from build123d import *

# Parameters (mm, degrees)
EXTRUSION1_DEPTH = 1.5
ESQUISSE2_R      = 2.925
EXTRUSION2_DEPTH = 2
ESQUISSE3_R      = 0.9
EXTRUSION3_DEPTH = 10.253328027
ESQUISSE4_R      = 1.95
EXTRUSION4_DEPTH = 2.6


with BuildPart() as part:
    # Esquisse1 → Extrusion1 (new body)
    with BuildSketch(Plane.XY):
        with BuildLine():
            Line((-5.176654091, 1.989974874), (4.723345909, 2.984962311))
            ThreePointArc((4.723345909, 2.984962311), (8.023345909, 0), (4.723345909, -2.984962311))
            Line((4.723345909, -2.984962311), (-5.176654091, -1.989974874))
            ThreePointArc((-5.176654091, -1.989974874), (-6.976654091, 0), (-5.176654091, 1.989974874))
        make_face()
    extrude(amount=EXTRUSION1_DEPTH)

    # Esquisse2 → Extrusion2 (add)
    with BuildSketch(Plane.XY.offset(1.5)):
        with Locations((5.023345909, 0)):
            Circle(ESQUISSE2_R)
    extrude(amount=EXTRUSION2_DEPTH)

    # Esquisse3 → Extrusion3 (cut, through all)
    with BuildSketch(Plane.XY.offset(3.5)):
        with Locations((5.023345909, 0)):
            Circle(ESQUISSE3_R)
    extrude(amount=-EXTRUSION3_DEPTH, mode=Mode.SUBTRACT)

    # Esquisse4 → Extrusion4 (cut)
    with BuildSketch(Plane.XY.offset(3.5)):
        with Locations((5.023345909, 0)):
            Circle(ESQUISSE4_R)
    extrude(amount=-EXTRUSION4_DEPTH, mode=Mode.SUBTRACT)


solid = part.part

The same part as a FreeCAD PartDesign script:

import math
import FreeCAD as App
import Part
import Sketcher
Q = App.Units.Quantity

doc = App.newDocument("Part")
body = doc.addObject("PartDesign::Body", "Body")

# Sketch on XY plane
sketch1 = body.newObject("Sketcher::SketchObject", "Sketch")
sketch1.AttachmentSupport = (doc.getObject("XY_Plane"), [""])
sketch1.MapMode = "FlatFace"
sketch1.addGeometry([
    Part.LineSegment(App.Vector(4.723346, 2.984962, 0), App.Vector(-5.176654, 1.989975, 0)),
    Part.ArcOfCircle(Part.Circle(App.Vector(-4.976654, 0, 0), App.Vector(0, 0, 1), 2), math.radians(95.73917), math.radians(264.26083)),
    Part.LineSegment(App.Vector(-5.176654, -1.989975, 0), App.Vector(4.723346, -2.984962, 0)),
    Part.ArcOfCircle(Part.Circle(App.Vector(5.023346, 0, 0), App.Vector(0, 0, 1), 3), math.radians(-95.73917), math.radians(95.73917)),
], False)
sketch1.addConstraint([
    Sketcher.Constraint("Tangent", 0, 2, 1, 1),
    Sketcher.Constraint("Tangent", 1, 2, 2, 1),
    Sketcher.Constraint("Tangent", 2, 2, 3, 1),
    Sketcher.Constraint("Tangent", 3, 2, 0, 1),
    Sketcher.Constraint("Symmetric", 0, 2, 1, 2, -1),
    Sketcher.Constraint("Radius", 1, Q("2 mm")),
    Sketcher.Constraint("Radius", 3, Q("3 mm")),
    Sketcher.Constraint("DistanceX", 1, 3, 3, 3, Q("10 mm")),
    Sketcher.Constraint("DistanceX", 1, 3, -1, 1, Q("4.976654 mm")),
])
pad1 = body.newObject("PartDesign::Pad", "Pad")
pad1.Profile = sketch1
pad1.Length = 1.5

# Sketch on XY plane
sketch2 = body.newObject("Sketcher::SketchObject", "Sketch001")
sketch2.AttachmentSupport = (doc.getObject("XY_Plane"), [""])
sketch2.MapMode = "FlatFace"
sketch2.AttachmentOffset = App.Placement(App.Vector(0, 0, 1.5), App.Rotation())
sketch2.addGeometry(Part.Circle(App.Vector(5.023346, 0, 0), App.Vector(0, 0, 1), 2.925), False)
sketch2.addConstraint([
    Sketcher.Constraint("PointOnObject", 0, 3, -1),
    Sketcher.Constraint("Diameter", 0, Q("5.85 mm")),
    Sketcher.Constraint("DistanceX", -1, 1, 0, 3, Q("5.023346 mm")),
])
pad2 = body.newObject("PartDesign::Pad", "Pad001")
pad2.Profile = sketch2
pad2.Length = 2

# Sketch on XY plane
sketch3 = body.newObject("Sketcher::SketchObject", "Sketch002")
sketch3.AttachmentSupport = (doc.getObject("XY_Plane"), [""])
sketch3.MapMode = "FlatFace"
sketch3.AttachmentOffset = App.Placement(App.Vector(0, 0, 3.5), App.Rotation())
sketch3.addGeometry(Part.Circle(App.Vector(5.023346, 0, 0), App.Vector(0, 0, 1), 0.9), False)
sketch3.addConstraint([
    Sketcher.Constraint("PointOnObject", 0, 3, -1),
    Sketcher.Constraint("Diameter", 0, Q("1.8 mm")),
    Sketcher.Constraint("DistanceX", -1, 1, 0, 3, Q("5.023346 mm")),
])
pocket1 = body.newObject("PartDesign::Pocket", "Pocket")
pocket1.Profile = sketch3
pocket1.Type = "ThroughAll"

# Sketch on XY plane
sketch4 = body.newObject("Sketcher::SketchObject", "Sketch003")
sketch4.AttachmentSupport = (doc.getObject("XY_Plane"), [""])
sketch4.MapMode = "FlatFace"
sketch4.AttachmentOffset = App.Placement(App.Vector(0, 0, 3.5), App.Rotation())
sketch4.addGeometry(Part.Circle(App.Vector(5.023346, 0, 0), App.Vector(0, 0, 1), 1.95), False)
sketch4.addConstraint([
    Sketcher.Constraint("PointOnObject", 0, 3, -1),
    Sketcher.Constraint("Diameter", 0, Q("3.9 mm")),
    Sketcher.Constraint("DistanceX", -1, 1, 0, 3, Q("5.023346 mm")),
])
pocket2 = body.newObject("PartDesign::Pocket", "Pocket001")
pocket2.Profile = sketch4
pocket2.Length = 2.6

doc.recompute()
